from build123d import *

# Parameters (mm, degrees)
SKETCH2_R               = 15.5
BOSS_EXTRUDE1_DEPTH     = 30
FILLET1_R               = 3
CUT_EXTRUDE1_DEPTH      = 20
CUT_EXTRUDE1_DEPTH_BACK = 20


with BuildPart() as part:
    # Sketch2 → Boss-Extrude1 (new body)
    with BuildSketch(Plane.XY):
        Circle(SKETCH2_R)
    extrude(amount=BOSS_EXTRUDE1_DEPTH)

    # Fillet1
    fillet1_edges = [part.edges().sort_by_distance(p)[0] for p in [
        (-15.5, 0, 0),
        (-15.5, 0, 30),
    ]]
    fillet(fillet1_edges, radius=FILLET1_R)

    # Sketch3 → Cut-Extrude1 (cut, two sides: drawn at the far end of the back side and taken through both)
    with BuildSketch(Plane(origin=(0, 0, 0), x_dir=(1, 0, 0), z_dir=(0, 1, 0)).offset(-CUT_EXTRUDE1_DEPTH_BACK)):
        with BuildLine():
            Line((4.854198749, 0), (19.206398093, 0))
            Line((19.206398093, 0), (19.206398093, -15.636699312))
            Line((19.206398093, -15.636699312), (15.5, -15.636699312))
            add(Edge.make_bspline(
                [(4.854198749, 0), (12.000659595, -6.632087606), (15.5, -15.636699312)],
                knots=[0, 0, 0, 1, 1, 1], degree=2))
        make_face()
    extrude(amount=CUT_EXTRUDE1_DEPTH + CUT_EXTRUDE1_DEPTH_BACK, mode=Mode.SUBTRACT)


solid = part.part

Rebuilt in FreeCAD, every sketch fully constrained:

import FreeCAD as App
import Part
import Sketcher

V = App.Vector
Q = App.Units.Quantity


def edges_at(feature, points):
    """Names of the edges that pass closest to the given points."""
    edges = feature.Shape.Edges
    near = lambda p: min(range(len(edges)), key=lambda i: edges[i].distToShape(Part.Vertex(*p))[0])
    return sorted({f"Edge{near(p) + 1}" for p in points})

doc = App.newDocument("Part")
body = doc.addObject("PartDesign::Body", "Body")

sketch1 = body.newObject("Sketcher::SketchObject", "Sketch")
sketch1.AttachmentSupport = (doc.getObject("XY_Plane"), [""])
sketch1.MapMode = "FlatFace"
sketch1.addGeometry(Part.Circle(V(0, 0, 0), V(0, 0, 1), 16), False)
sketch1.addConstraint([
    Sketcher.Constraint("Coincident", 0, 3, -1, 1),
    Sketcher.Constraint("Diameter", 0, Q("31 mm")),
])
pad1 = body.newObject("PartDesign::Pad", "Pad")
pad1.Profile = sketch1
pad1.Length = 30
doc.recompute()

fillet = body.newObject("PartDesign::Fillet", "Fillet")
fillet.Base = (pad1, edges_at(pad1, [(-15.5, 0, 0), (-15.5, 0, 30)]))
fillet.Radius = 3

sketch2 = body.newObject("Sketcher::SketchObject", "Sketch001")
sketch2.AttachmentSupport = (doc.getObject("XZ_Plane"), [""])
sketch2.MapMode = "FlatFace"
sketch2.addGeometry([
    Part.LineSegment(V(19.206398, 0, 0), V(4.854199, 0, 0)),
    Part.BSplineCurve([V(4.854199, 0, 0), V(12.00066, 6.632088, 0), V(15.5, 15.636699, 0)], [3, 3], [0, 1], False, 2, [1, 1, 1], False),
    Part.LineSegment(V(15.5, 15.636699, 0), V(19.206398, 15.636699, 0)),
    Part.LineSegment(V(19.206398, 15.636699, 0), V(19.206398, 0, 0)),
], False)
sketch2.addConstraint([
    Sketcher.Constraint("Block", 1),
    Sketcher.Constraint("Coincident", 0, 2, 1, 1),
    Sketcher.Constraint("Coincident", 1, 2, 2, 1),
    Sketcher.Constraint("Coincident", 2, 2, 3, 1),
    Sketcher.Constraint("Coincident", 3, 2, 0, 1),
    Sketcher.Constraint("Horizontal", 0),
    Sketcher.Constraint("Horizontal", 2),
    Sketcher.Constraint("Vertical", 3),
    Sketcher.Constraint("DistanceX", 0, 2, 0, 1, Q("14.352199 mm")),
])
pocket1 = body.newObject("PartDesign::Pocket", "Pocket")
pocket1.Profile = sketch2
pocket1.Type = "ThroughAll"
pocket1.Midplane = True

doc.recompute()
